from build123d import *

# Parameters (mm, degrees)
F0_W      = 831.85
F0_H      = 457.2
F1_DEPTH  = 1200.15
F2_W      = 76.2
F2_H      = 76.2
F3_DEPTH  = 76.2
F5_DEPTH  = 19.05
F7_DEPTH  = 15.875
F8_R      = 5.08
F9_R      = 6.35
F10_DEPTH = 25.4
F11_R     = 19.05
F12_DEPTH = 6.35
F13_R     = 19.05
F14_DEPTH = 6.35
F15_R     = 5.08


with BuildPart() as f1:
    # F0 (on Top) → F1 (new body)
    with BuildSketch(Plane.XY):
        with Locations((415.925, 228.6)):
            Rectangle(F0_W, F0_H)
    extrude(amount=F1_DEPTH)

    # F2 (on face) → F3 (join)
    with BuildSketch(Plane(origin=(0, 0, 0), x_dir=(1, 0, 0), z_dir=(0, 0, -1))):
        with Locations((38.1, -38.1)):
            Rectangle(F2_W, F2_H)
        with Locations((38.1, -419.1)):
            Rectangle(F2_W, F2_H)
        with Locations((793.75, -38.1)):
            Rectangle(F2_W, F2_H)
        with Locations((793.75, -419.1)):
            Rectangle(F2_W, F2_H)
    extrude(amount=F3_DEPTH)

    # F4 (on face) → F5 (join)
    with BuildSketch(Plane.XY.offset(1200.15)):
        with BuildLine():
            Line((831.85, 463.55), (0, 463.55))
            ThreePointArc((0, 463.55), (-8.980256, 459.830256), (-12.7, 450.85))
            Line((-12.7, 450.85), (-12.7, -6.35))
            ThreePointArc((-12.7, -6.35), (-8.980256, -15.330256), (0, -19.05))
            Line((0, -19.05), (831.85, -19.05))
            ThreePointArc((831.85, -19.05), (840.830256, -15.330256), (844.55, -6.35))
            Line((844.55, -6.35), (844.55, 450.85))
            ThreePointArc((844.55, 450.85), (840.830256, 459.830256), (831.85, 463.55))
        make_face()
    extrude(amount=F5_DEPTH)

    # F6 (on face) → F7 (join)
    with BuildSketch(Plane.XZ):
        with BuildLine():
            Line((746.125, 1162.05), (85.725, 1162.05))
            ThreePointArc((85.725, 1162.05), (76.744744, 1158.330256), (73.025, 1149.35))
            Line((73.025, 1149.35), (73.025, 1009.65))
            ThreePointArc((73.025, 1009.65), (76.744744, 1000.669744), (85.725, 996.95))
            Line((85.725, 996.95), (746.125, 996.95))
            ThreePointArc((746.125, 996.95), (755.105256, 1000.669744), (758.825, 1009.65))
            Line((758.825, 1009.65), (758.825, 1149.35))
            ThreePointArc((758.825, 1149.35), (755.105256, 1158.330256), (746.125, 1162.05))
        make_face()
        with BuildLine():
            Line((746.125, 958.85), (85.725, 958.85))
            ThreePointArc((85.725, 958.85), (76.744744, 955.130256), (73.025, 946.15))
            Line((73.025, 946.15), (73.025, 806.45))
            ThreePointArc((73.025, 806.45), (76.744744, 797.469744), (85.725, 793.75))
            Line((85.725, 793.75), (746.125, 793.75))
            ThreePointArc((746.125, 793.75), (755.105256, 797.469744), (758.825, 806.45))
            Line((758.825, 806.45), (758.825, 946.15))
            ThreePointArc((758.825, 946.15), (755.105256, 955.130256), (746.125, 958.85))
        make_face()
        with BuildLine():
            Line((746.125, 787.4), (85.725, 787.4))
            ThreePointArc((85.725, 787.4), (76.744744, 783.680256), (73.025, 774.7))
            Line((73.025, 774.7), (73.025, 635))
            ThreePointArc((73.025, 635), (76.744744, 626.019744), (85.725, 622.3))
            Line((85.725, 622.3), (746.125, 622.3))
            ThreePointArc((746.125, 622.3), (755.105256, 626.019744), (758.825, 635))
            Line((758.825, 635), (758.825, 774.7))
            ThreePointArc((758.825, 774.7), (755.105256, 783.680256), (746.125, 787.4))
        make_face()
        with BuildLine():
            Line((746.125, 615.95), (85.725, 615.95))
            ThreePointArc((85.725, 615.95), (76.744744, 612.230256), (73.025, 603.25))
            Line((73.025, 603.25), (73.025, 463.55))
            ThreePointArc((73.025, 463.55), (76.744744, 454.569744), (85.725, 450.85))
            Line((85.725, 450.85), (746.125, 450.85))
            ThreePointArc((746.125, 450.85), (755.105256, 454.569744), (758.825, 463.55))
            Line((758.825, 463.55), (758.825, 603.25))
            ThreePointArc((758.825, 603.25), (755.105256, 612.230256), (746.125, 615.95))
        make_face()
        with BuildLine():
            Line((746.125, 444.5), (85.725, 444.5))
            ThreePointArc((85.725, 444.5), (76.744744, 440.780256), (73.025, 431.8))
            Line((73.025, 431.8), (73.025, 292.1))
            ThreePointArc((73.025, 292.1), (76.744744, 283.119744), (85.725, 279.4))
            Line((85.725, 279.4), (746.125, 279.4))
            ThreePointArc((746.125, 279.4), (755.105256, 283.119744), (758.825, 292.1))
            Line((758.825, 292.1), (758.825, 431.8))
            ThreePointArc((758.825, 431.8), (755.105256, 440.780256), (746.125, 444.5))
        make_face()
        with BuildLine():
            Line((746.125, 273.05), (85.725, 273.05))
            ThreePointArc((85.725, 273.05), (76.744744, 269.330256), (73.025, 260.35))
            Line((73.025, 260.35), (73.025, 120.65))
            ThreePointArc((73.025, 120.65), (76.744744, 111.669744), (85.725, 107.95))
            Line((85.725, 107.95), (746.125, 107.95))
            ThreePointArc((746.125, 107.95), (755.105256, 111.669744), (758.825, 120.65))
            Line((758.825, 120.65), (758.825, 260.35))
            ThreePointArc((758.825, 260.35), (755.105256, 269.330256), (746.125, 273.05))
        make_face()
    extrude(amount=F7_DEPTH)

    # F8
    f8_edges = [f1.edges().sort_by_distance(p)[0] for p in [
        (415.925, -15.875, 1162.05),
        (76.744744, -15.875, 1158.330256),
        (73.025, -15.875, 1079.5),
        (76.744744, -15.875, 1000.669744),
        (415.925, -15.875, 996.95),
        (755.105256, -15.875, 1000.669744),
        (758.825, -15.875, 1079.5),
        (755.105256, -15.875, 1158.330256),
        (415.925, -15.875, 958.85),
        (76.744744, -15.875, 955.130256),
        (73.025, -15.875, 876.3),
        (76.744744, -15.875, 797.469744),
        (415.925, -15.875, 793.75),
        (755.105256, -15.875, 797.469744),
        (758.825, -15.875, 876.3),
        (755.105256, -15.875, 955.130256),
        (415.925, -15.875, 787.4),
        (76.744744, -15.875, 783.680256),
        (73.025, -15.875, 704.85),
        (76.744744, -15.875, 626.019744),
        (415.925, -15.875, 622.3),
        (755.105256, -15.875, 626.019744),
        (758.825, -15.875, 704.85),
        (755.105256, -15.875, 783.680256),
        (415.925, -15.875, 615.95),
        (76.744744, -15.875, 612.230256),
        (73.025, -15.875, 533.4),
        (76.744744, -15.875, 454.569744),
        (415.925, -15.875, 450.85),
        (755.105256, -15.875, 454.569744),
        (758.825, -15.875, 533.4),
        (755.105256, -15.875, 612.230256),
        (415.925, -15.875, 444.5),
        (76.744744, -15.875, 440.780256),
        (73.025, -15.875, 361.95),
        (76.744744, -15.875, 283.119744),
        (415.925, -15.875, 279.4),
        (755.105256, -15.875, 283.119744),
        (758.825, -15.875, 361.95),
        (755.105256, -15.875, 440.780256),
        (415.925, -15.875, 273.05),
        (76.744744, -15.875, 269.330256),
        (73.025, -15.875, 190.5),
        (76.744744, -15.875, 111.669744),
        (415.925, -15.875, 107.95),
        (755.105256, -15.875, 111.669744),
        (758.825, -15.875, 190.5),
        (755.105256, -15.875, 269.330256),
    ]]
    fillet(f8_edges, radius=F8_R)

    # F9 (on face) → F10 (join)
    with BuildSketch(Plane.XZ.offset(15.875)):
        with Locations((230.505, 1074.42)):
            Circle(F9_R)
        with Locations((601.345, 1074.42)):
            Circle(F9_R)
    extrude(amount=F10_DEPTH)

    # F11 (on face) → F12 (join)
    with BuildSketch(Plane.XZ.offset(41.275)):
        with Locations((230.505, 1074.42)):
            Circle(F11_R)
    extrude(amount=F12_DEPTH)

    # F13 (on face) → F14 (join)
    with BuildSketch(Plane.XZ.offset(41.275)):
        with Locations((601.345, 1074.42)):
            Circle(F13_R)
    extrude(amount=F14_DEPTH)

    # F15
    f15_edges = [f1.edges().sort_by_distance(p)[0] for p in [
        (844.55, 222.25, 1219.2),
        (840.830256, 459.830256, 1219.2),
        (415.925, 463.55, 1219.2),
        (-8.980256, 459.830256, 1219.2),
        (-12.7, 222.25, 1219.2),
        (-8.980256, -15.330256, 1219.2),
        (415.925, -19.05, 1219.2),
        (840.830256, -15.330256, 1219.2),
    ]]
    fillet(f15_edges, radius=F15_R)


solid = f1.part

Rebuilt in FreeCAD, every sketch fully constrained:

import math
import FreeCAD as App
import Part
import Sketcher
Q = App.Units.Quantity


def edges_at(feature, points):
    """Names of the edges that pass closest to the given points."""
    edges = feature.Shape.Edges
    near = lambda p: min(range(len(edges)), key=lambda i: edges[i].distToShape(Part.Vertex(*p))[0])
    return sorted({f"Edge{near(p) + 1}" for p in points})

doc = App.newDocument("Part")
params = doc.addObject("Spreadsheet::Sheet", "Params")
for row, (alias, value) in enumerate([
    ("sketch1_height", "18 in"),
    ("sketch1_width", "32.75 in"),
    ("pad1_length", "47.25 in"),
    ("sketch2_width", "3 in"),
    ("pad2_length", "3 in"),
    ("sketch3_radius", "0.5 in"),
    ("sketch3_height", "18 in"),
    ("sketch3_width", "32.75 in"),
    ("pad3_length", "0.75 in"),
    ("sketch4_radius", "0.5 in"),
    ("sketch4_width", "26 in"),
    ("sketch4_height", "5.5 in"),
    ("pad4_length", "0.625 in"),
    ("fillet_radius", "0.2 in"),
    ("sketch5_diameter", "0.5 in"),
    ("pad5_length", "1 in"),
    ("sketch6_diameter", "1.5 in"),
    ("pad6_length", "0.25 in"),
    ("sketch7_diameter", "1.5 in"),
    ("pad7_length", "0.25 in"),
    ("fillet2_radius", "0.2 in"),
], start=1):
    params.set(f"A{row}", alias)
    params.set(f"B{row}", "=" + value)
    params.setAlias(f"B{row}", alias)

body = doc.addObject("PartDesign::Body", "Body")

sketch1 = doc.addObject("Sketcher::SketchObject", "Sketch")
body.addObject(sketch1)
sketch1.AttachmentSupport = (doc.XY_Plane, [""])
sketch1.MapMode = "FlatFace"
sketch1.addGeometry([
    Part.LineSegment(App.Vector(0, 457, 0), App.Vector(0, 0, 0)),
    Part.LineSegment(App.Vector(0, 0, 0), App.Vector(832, 0, 0)),
    Part.LineSegment(App.Vector(832, 0, 0), App.Vector(832, 457, 0)),
    Part.LineSegment(App.Vector(832, 457, 0), App.Vector(0, 457, 0)),
], False)
sketch1.addConstraint([
    Sketcher.Constraint("Coincident", 0, 2, 1, 1),
    Sketcher.Constraint("Coincident", 1, 2, 2, 1),
    Sketcher.Constraint("Coincident", 2, 2, 3, 1),
    Sketcher.Constraint("Coincident", 3, 2, 0, 1),
    Sketcher.Constraint("Vertical", 0),
    Sketcher.Constraint("Horizontal", 1),
    Sketcher.Constraint("Vertical", 2),
    Sketcher.Constraint("Horizontal", 3),
    Sketcher.Constraint("Coincident", 0, 2, -1, 1),
    Sketcher.Constraint("DistanceY", 0, 2, 0, 1, Q("18 in")),
    Sketcher.Constraint("DistanceX", 1, 1, 1, 2, Q("32.75 in")),
])
sketch1.setExpression("Constraints[9]", "Params.sketch1_height")
sketch1.setExpression("Constraints[10]", "Params.sketch1_width")
pad1 = doc.addObject("PartDesign::Pad", "Pad")
body.addObject(pad1)
pad1.Profile = sketch1
pad1.setExpression("Length", "Params.pad1_length")

sketch2 = doc.addObject("Sketcher::SketchObject", "Sketch001")
body.addObject(sketch2)
sketch2.AttachmentSupport = (doc.XY_Plane, [""])
sketch2.MapMode = "FlatFace"
sketch2.addGeometry([
    Part.LineSegment(App.Vector(0, 0, 0), App.Vector(0, 76, 0)),
    Part.LineSegment(App.Vector(0, 76, 0), App.Vector(76, 76, 0)),
    Part.LineSegment(App.Vector(76, 76, 0), App.Vector(76, 0, 0)),
    Part.LineSegment(App.Vector(76, 0, 0), App.Vector(0, 0, 0)),
    Part.LineSegment(App.Vector(0, 381, 0), App.Vector(0, 457, 0)),
    Part.LineSegment(App.Vector(0, 457, 0), App.Vector(76, 457, 0)),
    Part.LineSegment(App.Vector(76, 457, 0), App.Vector(76, 381, 0)),
    Part.LineSegment(App.Vector(76, 381, 0), App.Vector(0, 381, 0)),
    Part.LineSegment(App.Vector(756, 0, 0), App.Vector(756, 76, 0)),
    Part.LineSegment(App.Vector(756, 76, 0), App.Vector(832, 76, 0)),
    Part.LineSegment(App.Vector(832, 76, 0), App.Vector(832, 0, 0)),
    Part.LineSegment(App.Vector(832, 0, 0), App.Vector(756, 0, 0)),
    Part.LineSegment(App.Vector(756, 381, 0), App.Vector(756, 457, 0)),
    Part.LineSegment(App.Vector(756, 457, 0), App.Vector(832, 457, 0)),
    Part.LineSegment(App.Vector(832, 457, 0), App.Vector(832, 381, 0)),
    Part.LineSegment(App.Vector(832, 381, 0), App.Vector(756, 381, 0)),
], False)
sketch2.addConstraint([
    Sketcher.Constraint("Coincident", 0, 2, 1, 1),
    Sketcher.Constraint("Coincident", 1, 2, 2, 1),
    Sketcher.Constraint("Coincident", 2, 2, 3, 1),
    Sketcher.Constraint("Coincident", 3, 2, 0, 1),
    Sketcher.Constraint("Coincident", 4, 2, 5, 1),
    Sketcher.Constraint("Coincident", 5, 2, 6, 1),
    Sketcher.Constraint("Coincident", 6, 2, 7, 1),
    Sketcher.Constraint("Coincident", 7, 2, 4, 1),
    Sketcher.Constraint("Coincident", 8, 2, 9, 1),
    Sketcher.Constraint("Coincident", 9, 2, 10, 1),
    Sketcher.Constraint("Coincident", 10, 2, 11, 1),
    Sketcher.Constraint("Coincident", 11, 2, 8, 1),
    Sketcher.Constraint("Coincident", 12, 2, 13, 1),
    Sketcher.Constraint("Coincident", 13, 2, 14, 1),
    Sketcher.Constraint("Coincident", 14, 2, 15, 1),
    Sketcher.Constraint("Coincident", 15, 2, 12, 1),
    Sketcher.Constraint("Vertical", 0),
    Sketcher.Constraint("Horizontal", 1),
    Sketcher.Constraint("Vertical", 2),
    Sketcher.Constraint("Horizontal", 3),
    Sketcher.Constraint("Vertical", 4),
    Sketcher.Constraint("Horizontal", 5),
    Sketcher.Constraint("Vertical", 6),
    Sketcher.Constraint("Horizontal", 7),
    Sketcher.Constraint("Vertical", 8),
    Sketcher.Constraint("Horizontal", 9),
    Sketcher.Constraint("Vertical", 10),
    Sketcher.Constraint("Horizontal", 11),
    Sketcher.Constraint("Vertical", 12),
    Sketcher.Constraint("Horizontal", 13),
    Sketcher.Constraint("Vertical", 14),
    Sketcher.Constraint("Horizontal", 15),
    Sketcher.Constraint("Coincident", 3, 2, -1, 1),
    Sketcher.Constraint("PointOnObject", 4, 2, -2),
    Sketcher.Constraint("PointOnObject", 10, 2, -1),
    Sketcher.Constraint("Horizontal", 1, 2, 8, 2),
    Sketcher.Constraint("Horizontal", 5, 2, 12, 2),
    Sketcher.Constraint("Horizontal", 7, 2, 14, 2),
    Sketcher.Constraint("Vertical", 2, 2, 5, 2),
    Sketcher.Constraint("Vertical", 11, 2, 12, 2),
    Sketcher.Constraint("Vertical", 10, 2, 13, 2),
    Sketcher.Constraint("Equal", 7, 9),
    Sketcher.Constraint("Equal", 15, 0),
    Sketcher.Constraint("Equal", 2, 4),
    Sketcher.Constraint("DistanceX", 1, 1, 1, 2, Q("3 in")),
    Sketcher.Constraint("DistanceY", -1, 1, 4, 2, Q("18 in")),
    Sketcher.Constraint("DistanceX", -1, 1, 8, 2, Q("29.75 in")),
])
sketch2.setExpression("Constraints[44]", "Params.sketch2_width")
pad2 = doc.addObject("PartDesign::Pad", "Pad001")
body.addObject(pad2)
pad2.Profile = sketch2
pad2.setExpression("Length", "Params.pad2_length")
pad2.Reversed = True

sketch3 = doc.addObject("Sketcher::SketchObject", "Sketch002")
body.addObject(sketch3)
sketch3.AttachmentSupport = (doc.XY_Plane, [""])
sketch3.MapMode = "FlatFace"
sketch3.AttachmentOffset = App.Placement(App.Vector(0, 0, 47.25 * 25.4), App.Rotation())
sketch3.addGeometry([
    Part.LineSegment(App.Vector(832, 464, 0), App.Vector(0, 464, 0)),
    Part.ArcOfCircle(Part.Circle(App.Vector(0, 451, 0), App.Vector(0, 0, 1), 13), math.radians(90), math.radians(180)),
    Part.LineSegment(App.Vector(-13, 451, 0), App.Vector(-13, -6, 0)),
    Part.ArcOfCircle(Part.Circle(App.Vector(0, -6, 0), App.Vector(0, 0, 1), 13), math.radians(-180), math.radians(-90)),
    Part.LineSegment(App.Vector(0, -19, 0), App.Vector(832, -19, 0)),
    Part.ArcOfCircle(Part.Circle(App.Vector(832, -6, 0), App.Vector(0, 0, 1), 13), math.radians(-90), math.radians(0)),
    Part.LineSegment(App.Vector(845, -6, 0), App.Vector(845, 451, 0)),
    Part.ArcOfCircle(Part.Circle(App.Vector(832, 451, 0), App.Vector(0, 0, 1), 13), math.radians(0), math.radians(90)),
], False)
sketch3.addConstraint([
    Sketcher.Constraint("Tangent", 0, 2, 1, 1),
    Sketcher.Constraint("Tangent", 1, 2, 2, 1),
    Sketcher.Constraint("Tangent", 2, 2, 3, 1),
    Sketcher.Constraint("Tangent", 3, 2, 4, 1),
    Sketcher.Constraint("Tangent", 4, 2, 5, 1),
    Sketcher.Constraint("Tangent", 5, 2, 6, 1),
    Sketcher.Constraint("Tangent", 6, 2, 7, 1),
    Sketcher.Constraint("Tangent", 7, 2, 0, 1),
    Sketcher.Constraint("Horizontal", 0),
    Sketcher.Constraint("Vertical", 2),
    Sketcher.Constraint("Horizontal", 4),
    Sketcher.Constraint("Vertical", 6),
    Sketcher.Constraint("Equal", 1, 3),
    Sketcher.Constraint("Equal", 3, 5),
    Sketcher.Constraint("Equal", 5, 7),
    Sketcher.Constraint("PointOnObject", 1, 3, -2),
    Sketcher.Constraint("Radius", 1, Q("0.5 in")),
    Sketcher.Constraint("DistanceY", 2, 2, 2, 1, Q("18 in")),
    Sketcher.Constraint("DistanceX", 0, 2, 0, 1, Q("32.75 in")),
    Sketcher.Constraint("DistanceY", -1, 1, 1, 3, Q("17.75 in")),
])
sketch3.setExpression("Constraints[16]", "Params.sketch3_radius")
sketch3.setExpression("Constraints[17]", "Params.sketch3_height")
sketch3.setExpression("Constraints[18]", "Params.sketch3_width")
pad3 = doc.addObject("PartDesign::Pad", "Pad002")
body.addObject(pad3)
pad3.Profile = sketch3
pad3.setExpression("Length", "Params.pad3_length")

sketch4 = doc.addObject("Sketcher::SketchObject", "Sketch003")
body.addObject(sketch4)
sketch4.AttachmentSupport = (doc.XZ_Plane, [""])
sketch4.MapMode = "FlatFace"
sketch4.addGeometry([
    Part.LineSegment(App.Vector(746, 1162, 0), App.Vector(86, 1162, 0)),
    Part.ArcOfCircle(Part.Circle(App.Vector(86, 1149, 0), App.Vector(0, 0, 1), 13), math.radians(90), math.radians(180)),
    Part.LineSegment(App.Vector(73, 1149, 0), App.Vector(73, 1010, 0)),
    Part.ArcOfCircle(Part.Circle(App.Vector(86, 1010, 0), App.Vector(0, 0, 1), 13), math.radians(-180), math.radians(-90)),
    Part.LineSegment(App.Vector(86, 997, 0), App.Vector(746, 997, 0)),
    Part.ArcOfCircle(Part.Circle(App.Vector(746, 1010, 0), App.Vector(0, 0, 1), 13), math.radians(-90), math.radians(0)),
    Part.LineSegment(App.Vector(759, 1010, 0), App.Vector(759, 1149, 0)),
    Part.ArcOfCircle(Part.Circle(App.Vector(746, 1149, 0), App.Vector(0, 0, 1), 13), math.radians(0), math.radians(90)),
    Part.LineSegment(App.Vector(746, 959, 0), App.Vector(86, 959, 0)),
    Part.ArcOfCircle(Part.Circle(App.Vector(86, 946, 0), App.Vector(0, 0, 1), 13), math.radians(90), math.radians(180)),
    Part.LineSegment(App.Vector(73, 946, 0), App.Vector(73, 806, 0)),
    Part.ArcOfCircle(Part.Circle(App.Vector(86, 806, 0), App.Vector(0, 0, 1), 13), math.radians(-180), math.radians(-90)),
    Part.LineSegment(App.Vector(86, 794, 0), App.Vector(746, 794, 0)),
    Part.ArcOfCircle(Part.Circle(App.Vector(746, 806, 0), App.Vector(0, 0, 1), 13), math.radians(-90), math.radians(0)),
    Part.LineSegment(App.Vector(759, 806, 0), App.Vector(759, 946, 0)),
    Part.ArcOfCircle(Part.Circle(App.Vector(746, 946, 0), App.Vector(0, 0, 1), 13), math.radians(0), math.radians(90)),
    Part.LineSegment(App.Vector(746, 787, 0), App.Vector(86, 787, 0)),
    Part.ArcOfCircle(Part.Circle(App.Vector(86, 775, 0), App.Vector(0, 0, 1), 13), math.radians(90), math.radians(180)),
    Part.LineSegment(App.Vector(73, 775, 0), App.Vector(73, 635, 0)),
    Part.ArcOfCircle(Part.Circle(App.Vector(86, 635, 0), App.Vector(0, 0, 1), 13), math.radians(-180), math.radians(-90)),
    Part.LineSegment(App.Vector(86, 622, 0), App.Vector(746, 622, 0)),
    Part.ArcOfCircle(Part.Circle(App.Vector(746, 635, 0), App.Vector(0, 0, 1), 13), math.radians(-90), math.radians(0)),
    Part.LineSegment(App.Vector(759, 635, 0), App.Vector(759, 775, 0)),
    Part.ArcOfCircle(Part.Circle(App.Vector(746, 775, 0), App.Vector(0, 0, 1), 13), math.radians(0), math.radians(90)),
    Part.LineSegment(App.Vector(746, 616, 0), App.Vector(86, 616, 0)),
    Part.ArcOfCircle(Part.Circle(App.Vector(86, 603, 0), App.Vector(0, 0, 1), 13), math.radians(90), math.radians(180)),
    Part.LineSegment(App.Vector(73, 603, 0), App.Vector(73, 464, 0)),
    Part.ArcOfCircle(Part.Circle(App.Vector(86, 464, 0), App.Vector(0, 0, 1), 13), math.radians(-180), math.radians(-90)),
    Part.LineSegment(App.Vector(86, 451, 0), App.Vector(746, 451, 0)),
    Part.ArcOfCircle(Part.Circle(App.Vector(746, 464, 0), App.Vector(0, 0, 1), 13), math.radians(-90), math.radians(0)),
    Part.LineSegment(App.Vector(759, 464, 0), App.Vector(759, 603, 0)),
    Part.ArcOfCircle(Part.Circle(App.Vector(746, 603, 0), App.Vector(0, 0, 1), 13), math.radians(0), math.radians(90)),
    Part.LineSegment(App.Vector(746, 444, 0), App.Vector(86, 444, 0)),
    Part.ArcOfCircle(Part.Circle(App.Vector(86, 432, 0), App.Vector(0, 0, 1), 13), math.radians(90), math.radians(180)),
    Part.LineSegment(App.Vector(73, 432, 0), App.Vector(73, 292, 0)),
    Part.ArcOfCircle(Part.Circle(App.Vector(86, 292, 0), App.Vector(0, 0, 1), 13), math.radians(-180), math.radians(-90)),
    Part.LineSegment(App.Vector(86, 279, 0), App.Vector(746, 279, 0)),
    Part.ArcOfCircle(Part.Circle(App.Vector(746, 292, 0), App.Vector(0, 0, 1), 13), math.radians(-90), math.radians(0)),
    Part.LineSegment(App.Vector(759, 292, 0), App.Vector(759, 432, 0)),
    Part.ArcOfCircle(Part.Circle(App.Vector(746, 432, 0), App.Vector(0, 0, 1), 13), math.radians(0), math.radians(90)),
    Part.LineSegment(App.Vector(746, 273, 0), App.Vector(86, 273, 0)),
    Part.ArcOfCircle(Part.Circle(App.Vector(86, 260, 0), App.Vector(0, 0, 1), 13), math.radians(90), math.radians(180)),
    Part.LineSegment(App.Vector(73, 260, 0), App.Vector(73, 121, 0)),
    Part.ArcOfCircle(Part.Circle(App.Vector(86, 121, 0), App.Vector(0, 0, 1), 13), math.radians(-180), math.radians(-90)),
    Part.LineSegment(App.Vector(86, 108, 0), App.Vector(746, 108, 0)),
    Part.ArcOfCircle(Part.Circle(App.Vector(746, 121, 0), App.Vector(0, 0, 1), 13), math.radians(-90), math.radians(0)),
    Part.LineSegment(App.Vector(759, 121, 0), App.Vector(759, 260, 0)),
    Part.ArcOfCircle(Part.Circle(App.Vector(746, 260, 0), App.Vector(0, 0, 1), 13), math.radians(0), math.radians(90)),
], False)
sketch4.addConstraint([
    Sketcher.Constraint("Tangent", 0, 2, 1, 1),
    Sketcher.Constraint("Tangent", 1, 2, 2, 1),
    Sketcher.Constraint("Tangent", 2, 2, 3, 1),
    Sketcher.Constraint("Tangent", 3, 2, 4, 1),
    Sketcher.Constraint("Tangent", 4, 2, 5, 1),
    Sketcher.Constraint("Tangent", 5, 2, 6, 1),
    Sketcher.Constraint("Tangent", 6, 2, 7, 1),
    Sketcher.Constraint("Tangent", 7, 2, 0, 1),
    Sketcher.Constraint("Tangent", 8, 2, 9, 1),
    Sketcher.Constraint("Tangent", 9, 2, 10, 1),
    Sketcher.Constraint("Tangent", 10, 2, 11, 1),
    Sketcher.Constraint("Tangent", 11, 2, 12, 1),
    Sketcher.Constraint("Tangent", 12, 2, 13, 1),
    Sketcher.Constraint("Tangent", 13, 2, 14, 1),
    Sketcher.Constraint("Tangent", 14, 2, 15, 1),
    Sketcher.Constraint("Tangent", 15, 2, 8, 1),
    Sketcher.Constraint("Tangent", 16, 2, 17, 1),
    Sketcher.Constraint("Tangent", 17, 2, 18, 1),
    Sketcher.Constraint("Tangent", 18, 2, 19, 1),
    Sketcher.Constraint("Tangent", 19, 2, 20, 1),
    Sketcher.Constraint("Tangent", 20, 2, 21, 1),
    Sketcher.Constraint("Tangent", 21, 2, 22, 1),
    Sketcher.Constraint("Tangent", 22, 2, 23, 1),
    Sketcher.Constraint("Tangent", 23, 2, 16, 1),
    Sketcher.Constraint("Tangent", 24, 2, 25, 1),
    Sketcher.Constraint("Tangent", 25, 2, 26, 1),
    Sketcher.Constraint("Tangent", 26, 2, 27, 1),
    Sketcher.Constraint("Tangent", 27, 2, 28, 1),
    Sketcher.Constraint("Tangent", 28, 2, 29, 1),
    Sketcher.Constraint("Tangent", 29, 2, 30, 1),
    Sketcher.Constraint("Tangent", 30, 2, 31, 1),
    Sketcher.Constraint("Tangent", 31, 2, 24, 1),
    Sketcher.Constraint("Tangent", 32, 2, 33, 1),
    Sketcher.Constraint("Tangent", 33, 2, 34, 1),
    Sketcher.Constraint("Tangent", 34, 2, 35, 1),
    Sketcher.Constraint("Tangent", 35, 2, 36, 1),
    Sketcher.Constraint("Tangent", 36, 2, 37, 1),
    Sketcher.Constraint("Tangent", 37, 2, 38, 1),
    Sketcher.Constraint("Tangent", 38, 2, 39, 1),
    Sketcher.Constraint("Tangent", 39, 2, 32, 1),
    Sketcher.Constraint("Tangent", 40, 2, 41, 1),
    Sketcher.Constraint("Tangent", 41, 2, 42, 1),
    Sketcher.Constraint("Tangent", 42, 2, 43, 1),
    Sketcher.Constraint("Tangent", 43, 2, 44, 1),
    Sketcher.Constraint("Tangent", 44, 2, 45, 1),
    Sketcher.Constraint("Tangent", 45, 2, 46, 1),
    Sketcher.Constraint("Tangent", 46, 2, 47, 1),
    Sketcher.Constraint("Tangent", 47, 2, 40, 1),
    Sketcher.Constraint("Horizontal", 0),
    Sketcher.Constraint("Vertical", 2),
    Sketcher.Constraint("Horizontal", 4),
    Sketcher.Constraint("Vertical", 6),
    Sketcher.Constraint("Horizontal", 8),
    Sketcher.Constraint("Vertical", 10),
    Sketcher.Constraint("Horizontal", 12),
    Sketcher.Constraint("Vertical", 14),
    Sketcher.Constraint("Horizontal", 16),
    Sketcher.Constraint("Vertical", 18),
    Sketcher.Constraint("Horizontal", 20),
    Sketcher.Constraint("Vertical", 22),
    Sketcher.Constraint("Horizontal", 24),
    Sketcher.Constraint("Vertical", 26),
    Sketcher.Constraint("Horizontal", 28),
    Sketcher.Constraint("Vertical", 30),
    Sketcher.Constraint("Horizontal", 32),
    Sketcher.Constraint("Vertical", 34),
    Sketcher.Constraint("Horizontal", 36),
    Sketcher.Constraint("Vertical", 38),
    Sketcher.Constraint("Horizontal", 40),
    Sketcher.Constraint("Vertical", 42),
    Sketcher.Constraint("Horizontal", 44),
    Sketcher.Constraint("Vertical", 46),
    Sketcher.Constraint("Equal", 1, 3),
    Sketcher.Constraint("Equal", 3, 5),
    Sketcher.Constraint("Equal", 5, 7),
    Sketcher.Constraint("Equal", 7, 9),
    Sketcher.Constraint("Equal", 9, 11),
    Sketcher.Constraint("Equal", 11, 13),
    Sketcher.Constraint("Equal", 13, 15),
    Sketcher.Constraint("Equal", 15, 17),
    Sketcher.Constraint("Equal", 17, 19),
    Sketcher.Constraint("Equal", 19, 21),
    Sketcher.Constraint("Equal", 21, 23),
    Sketcher.Constraint("Equal", 23, 25),
    Sketcher.Constraint("Equal", 25, 27),
    Sketcher.Constraint("Equal", 27, 29),
    Sketcher.Constraint("Equal", 29, 31),
    Sketcher.Constraint("Equal", 31, 33),
    Sketcher.Constraint("Equal", 33, 35),
    Sketcher.Constraint("Equal", 35, 37),
    Sketcher.Constraint("Equal", 37, 39),
    Sketcher.Constraint("Equal", 39, 41),
    Sketcher.Constraint("Equal", 41, 43),
    Sketcher.Constraint("Equal", 43, 45),
    Sketcher.Constraint("Equal", 45, 47),
    Sketcher.Constraint("Vertical", 3, 3, 9, 3),
    Sketcher.Constraint("Vertical", 7, 3, 13, 3),
    Sketcher.Constraint("Vertical", 11, 3, 17, 3),
    Sketcher.Constraint("Vertical", 15, 3, 21, 3),
    Sketcher.Constraint("Vertical", 19, 3, 25, 3),
    Sketcher.Constraint("Vertical", 23, 3, 29, 3),
    Sketcher.Constraint("Vertical", 27, 3, 33, 3),
    Sketcher.Constraint("Vertical", 31, 3, 37, 3),
    Sketcher.Constraint("Vertical", 35, 3, 41, 3),
    Sketcher.Constraint("Vertical", 39, 3, 45, 3),
    Sketcher.Constraint("Equal", 6, 10),
    Sketcher.Constraint("Equal", 14, 18),
    Sketcher.Constraint("Equal", 22, 26),
    Sketcher.Constraint("Equal", 30, 34),
    Sketcher.Constraint("Equal", 38, 42),
    Sketcher.Constraint("Radius", 1, Q("0.5 in")),
    Sketcher.Constraint("DistanceX", 0, 2, 0, 1, Q("26 in")),
    Sketcher.Constraint("DistanceY", 2, 2, 2, 1, Q("5.5 in")),
    Sketcher.Constraint("DistanceY", -1, 1, 19, 3, Q("25 in")),
    Sketcher.Constraint("DistanceY", -1, 1, 33, 3, Q("17 in")),
    Sketcher.Constraint("DistanceY", -1, 1, 1, 3, Q("45.25 in")),
    Sketcher.Constraint("DistanceY", -1, 1, 9, 3, Q("37.25 in")),
    Sketcher.Constraint("DistanceY", -1, 1, 25, 3, Q("23.75 in")),
    Sketcher.Constraint("DistanceY", -1, 1, 41, 3, Q("10.25 in")),
    Sketcher.Constraint("DistanceX", -1, 1, 1, 3, Q("3.375 in")),
])
sketch4.setExpression("Constraints[110]", "Params.sketch4_radius")
sketch4.setExpression("Constraints[111]", "Params.sketch4_width")
sketch4.setExpression("Constraints[112]", "Params.sketch4_height")
pad4 = doc.addObject("PartDesign::Pad", "Pad003")
body.addObject(pad4)
pad4.Profile = sketch4
pad4.setExpression("Length", "Params.pad4_length")
doc.recompute()

fillet = doc.addObject("PartDesign::Fillet", "Fillet")
body.addObject(fillet)
fillet.Base = (pad4, edges_at(pad4, [
    (415.925, -15.875, 1162.05),
    (76.745, -15.875, 1158.33),
    (73.025, -15.875, 1079.5),
    (76.745, -15.875, 1000.67),
    (415.925, -15.875, 996.95),
    (755.105, -15.875, 1000.67),
    (758.825, -15.875, 1079.5),
    (755.105, -15.875, 1158.33),
    (415.925, -15.875, 958.85),
    (76.745, -15.875, 955.13),
    (73.025, -15.875, 876.3),
    (76.745, -15.875, 797.47),
    (415.925, -15.875, 793.75),
    (755.105, -15.875, 797.47),
    (758.825, -15.875, 876.3),
    (755.105, -15.875, 955.13),
    (415.925, -15.875, 787.4),
    (76.745, -15.875, 783.68),
    (73.025, -15.875, 704.85),
    (76.745, -15.875, 626.02),
    (415.925, -15.875, 622.3),
    (755.105, -15.875, 626.02),
    (758.825, -15.875, 704.85),
    (755.105, -15.875, 783.68),
    (415.925, -15.875, 615.95),
    (76.745, -15.875, 612.23),
    (73.025, -15.875, 533.4),
    (76.745, -15.875, 454.57),
    (415.925, -15.875, 450.85),
    (755.105, -15.875, 454.57),
    (758.825, -15.875, 533.4),
    (755.105, -15.875, 612.23),
    (415.925, -15.875, 444.5),
    (76.745, -15.875, 440.78),
    (73.025, -15.875, 361.95),
    (76.745, -15.875, 283.12),
    (415.925, -15.875, 279.4),
    (755.105, -15.875, 283.12),
    (758.825, -15.875, 361.95),
    (755.105, -15.875, 440.78),
    (415.925, -15.875, 273.05),
    (76.745, -15.875, 269.33),
    (73.025, -15.875, 190.5),
    (76.745, -15.875, 111.67),
    (415.925, -15.875, 107.95),
    (755.105, -15.875, 111.67),
    (758.825, -15.875, 190.5),
    (755.105, -15.875, 269.33),
]))
fillet.setExpression("Radius", "Params.fillet_radius")

sketch5 = doc.addObject("Sketcher::SketchObject", "Sketch004")
body.addObject(sketch5)
sketch5.AttachmentSupport = (doc.XZ_Plane, [""])
sketch5.MapMode = "FlatFace"
sketch5.AttachmentOffset = App.Placement(App.Vector(0, 0, 0.625 * 25.4), App.Rotation())
sketch5.addGeometry([
    Part.Circle(App.Vector(231, 1074, 0), App.Vector(0, 0, 1), 6),
    Part.Circle(App.Vector(601, 1074, 0), App.Vector(0, 0, 1), 6),
], False)
sketch5.addConstraint([
    Sketcher.Constraint("Equal", 0, 1),
    Sketcher.Constraint("Horizontal", 0, 3, 1, 3),
    Sketcher.Constraint("Diameter", 0, Q("0.5 in")),
    Sketcher.Constraint("DistanceY", -1, 1, 0, 3, Q("42.3 in")),
    Sketcher.Constraint("DistanceX", 0, 3, 1, 3, Q("14.6 in")),
    Sketcher.Constraint("DistanceX", -1, 1, 0, 3, Q("9.075 in")),
])
sketch5.setExpression("Constraints[2]", "Params.sketch5_diameter")
pad5 = doc.addObject("PartDesign::Pad", "Pad004")
body.addObject(pad5)
pad5.Profile = sketch5
pad5.setExpression("Length", "Params.pad5_length")

sketch6 = doc.addObject("Sketcher::SketchObject", "Sketch005")
body.addObject(sketch6)
sketch6.AttachmentSupport = (doc.XZ_Plane, [""])
sketch6.MapMode = "FlatFace"
sketch6.AttachmentOffset = App.Placement(App.Vector(0, 0, 1.625 * 25.4), App.Rotation())
sketch6.addGeometry(Part.Circle(App.Vector(231, 1074, 0), App.Vector(0, 0, 1), 19), False)
sketch6.addConstraint([
    Sketcher.Constraint("Diameter", 0, Q("1.5 in")),
    Sketcher.Constraint("DistanceY", -1, 1, 0, 3, Q("42.3 in")),
    Sketcher.Constraint("DistanceX", -1, 1, 0, 3, Q("9.075 in")),
])
sketch6.setExpression("Constraints[0]", "Params.sketch6_diameter")
pad6 = doc.addObject("PartDesign::Pad", "Pad005")
body.addObject(pad6)
pad6.Profile = sketch6
pad6.setExpression("Length", "Params.pad6_length")

sketch7 = doc.addObject("Sketcher::SketchObject", "Sketch006")
body.addObject(sketch7)
sketch7.AttachmentSupport = (doc.XZ_Plane, [""])
sketch7.MapMode = "FlatFace"
sketch7.AttachmentOffset = App.Placement(App.Vector(0, 0, 1.625 * 25.4), App.Rotation())
sketch7.addGeometry(Part.Circle(App.Vector(601, 1074, 0), App.Vector(0, 0, 1), 19), False)
sketch7.addConstraint([
    Sketcher.Constraint("Diameter", 0, Q("1.5 in")),
    Sketcher.Constraint("DistanceY", -1, 1, 0, 3, Q("42.3 in")),
    Sketcher.Constraint("DistanceX", -1, 1, 0, 3, Q("23.675 in")),
])
sketch7.setExpression("Constraints[0]", "Params.sketch7_diameter")
pad7 = doc.addObject("PartDesign::Pad", "Pad006")
body.addObject(pad7)
pad7.Profile = sketch7
pad7.setExpression("Length", "Params.pad7_length")
doc.recompute()

fillet2 = doc.addObject("PartDesign::Fillet", "Fillet001")
body.addObject(fillet2)
fillet2.Base = (pad7, edges_at(pad7, [
    (844.55, 222.25, 1219.2),
    (840.83, 459.83, 1219.2),
    (415.925, 463.55, 1219.2),
    (-8.98, 459.83, 1219.2),
    (-12.7, 222.25, 1219.2),
    (-8.98, -15.33, 1219.2),
    (415.925, -19.05, 1219.2),
    (840.83, -15.33, 1219.2),
]))
fillet2.setExpression("Radius", "Params.fillet2_radius")

doc.recompute()
